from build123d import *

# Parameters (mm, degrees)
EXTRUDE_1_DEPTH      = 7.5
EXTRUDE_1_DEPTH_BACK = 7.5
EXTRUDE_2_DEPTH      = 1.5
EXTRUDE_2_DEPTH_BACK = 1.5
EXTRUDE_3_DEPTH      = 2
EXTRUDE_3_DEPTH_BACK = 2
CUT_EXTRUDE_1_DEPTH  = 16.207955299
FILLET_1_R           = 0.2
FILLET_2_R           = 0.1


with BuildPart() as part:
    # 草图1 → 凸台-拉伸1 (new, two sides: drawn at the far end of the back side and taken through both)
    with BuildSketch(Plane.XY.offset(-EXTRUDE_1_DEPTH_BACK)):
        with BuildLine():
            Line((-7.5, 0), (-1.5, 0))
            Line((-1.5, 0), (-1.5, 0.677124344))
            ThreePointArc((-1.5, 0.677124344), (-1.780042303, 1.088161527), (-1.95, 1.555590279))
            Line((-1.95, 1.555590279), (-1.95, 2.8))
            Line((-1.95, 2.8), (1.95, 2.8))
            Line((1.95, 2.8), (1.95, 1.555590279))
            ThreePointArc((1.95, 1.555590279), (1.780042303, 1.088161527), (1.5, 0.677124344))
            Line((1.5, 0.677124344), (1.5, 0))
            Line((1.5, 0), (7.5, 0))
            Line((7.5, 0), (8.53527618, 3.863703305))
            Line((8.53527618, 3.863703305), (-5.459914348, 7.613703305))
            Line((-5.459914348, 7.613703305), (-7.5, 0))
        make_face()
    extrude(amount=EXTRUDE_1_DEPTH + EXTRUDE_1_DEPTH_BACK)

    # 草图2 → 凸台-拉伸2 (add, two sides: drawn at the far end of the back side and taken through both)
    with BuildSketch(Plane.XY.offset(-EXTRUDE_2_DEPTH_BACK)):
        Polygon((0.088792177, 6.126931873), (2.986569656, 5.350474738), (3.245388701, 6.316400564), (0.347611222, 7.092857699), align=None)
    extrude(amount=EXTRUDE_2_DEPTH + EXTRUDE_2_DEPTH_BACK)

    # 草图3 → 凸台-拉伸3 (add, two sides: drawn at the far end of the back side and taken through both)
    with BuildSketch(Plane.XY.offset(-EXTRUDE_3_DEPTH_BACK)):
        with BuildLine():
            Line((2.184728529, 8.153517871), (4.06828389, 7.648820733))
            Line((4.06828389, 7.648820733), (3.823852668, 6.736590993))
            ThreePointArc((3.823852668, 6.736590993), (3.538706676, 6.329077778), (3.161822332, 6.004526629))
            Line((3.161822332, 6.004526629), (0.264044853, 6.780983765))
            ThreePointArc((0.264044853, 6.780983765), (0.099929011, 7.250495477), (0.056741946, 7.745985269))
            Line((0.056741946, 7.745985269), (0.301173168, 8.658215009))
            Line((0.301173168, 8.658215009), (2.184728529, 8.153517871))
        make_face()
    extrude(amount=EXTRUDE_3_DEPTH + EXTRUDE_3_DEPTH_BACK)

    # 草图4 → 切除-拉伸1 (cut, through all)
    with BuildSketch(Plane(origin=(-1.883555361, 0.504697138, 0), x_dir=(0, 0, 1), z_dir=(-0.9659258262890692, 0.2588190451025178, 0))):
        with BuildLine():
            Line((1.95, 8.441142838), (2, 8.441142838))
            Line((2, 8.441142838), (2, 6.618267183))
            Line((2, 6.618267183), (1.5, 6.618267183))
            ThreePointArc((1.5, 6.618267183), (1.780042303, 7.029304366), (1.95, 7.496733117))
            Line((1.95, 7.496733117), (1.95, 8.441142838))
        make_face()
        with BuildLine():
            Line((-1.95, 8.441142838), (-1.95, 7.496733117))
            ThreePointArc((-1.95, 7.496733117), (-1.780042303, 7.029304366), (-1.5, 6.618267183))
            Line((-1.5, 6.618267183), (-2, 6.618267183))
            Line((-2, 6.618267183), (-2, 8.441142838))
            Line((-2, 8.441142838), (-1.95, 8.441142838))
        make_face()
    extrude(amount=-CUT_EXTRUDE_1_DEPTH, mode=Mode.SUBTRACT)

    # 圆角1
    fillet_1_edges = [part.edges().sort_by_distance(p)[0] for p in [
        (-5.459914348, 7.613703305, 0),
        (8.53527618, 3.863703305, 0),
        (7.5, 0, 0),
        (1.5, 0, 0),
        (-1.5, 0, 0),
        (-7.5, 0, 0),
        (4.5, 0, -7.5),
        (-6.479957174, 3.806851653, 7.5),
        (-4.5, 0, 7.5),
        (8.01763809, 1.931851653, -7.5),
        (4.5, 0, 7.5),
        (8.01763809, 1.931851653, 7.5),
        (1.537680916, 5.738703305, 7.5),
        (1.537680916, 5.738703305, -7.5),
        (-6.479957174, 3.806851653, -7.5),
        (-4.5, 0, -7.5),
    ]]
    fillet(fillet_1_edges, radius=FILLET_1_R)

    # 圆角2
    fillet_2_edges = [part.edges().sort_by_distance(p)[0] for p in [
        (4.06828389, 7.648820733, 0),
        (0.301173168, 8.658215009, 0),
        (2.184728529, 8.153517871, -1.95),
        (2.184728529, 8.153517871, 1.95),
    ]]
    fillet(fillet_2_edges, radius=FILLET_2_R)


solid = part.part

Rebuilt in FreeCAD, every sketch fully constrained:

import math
import FreeCAD as App
import Part
import Sketcher
from FreeCAD import Vector
Q = App.Units.Quantity


def edges_at(feature, points):
    """Names of the edges that pass closest to the given points."""
    edges = feature.Shape.Edges
    near = lambda p: min(range(len(edges)), key=lambda i: edges[i].distToShape(Part.Vertex(*p))[0])
    return sorted({f"Edge{near(p) + 1}" for p in points})


def add_polygon(sketch, points):
    """Adds a closed chain of lines whose ends are joined by coincident constraints."""
    first, n = sketch.GeometryCount, len(points)
    for a, b in zip(points, points[1:] + points[:1]):
        sketch.addGeometry(Part.LineSegment(App.Vector(*a, 0), App.Vector(*b, 0)), False)
    for i in range(n):
        sketch.addConstraint(Sketcher.Constraint("Coincident", first + i, 2, first + (i + 1) % n, 1))

doc = App.newDocument("Part")
params = doc.addObject("Spreadsheet::Sheet", "Params")
for row, (alias, value) in enumerate([
    ("sketch1_radius", "2 mm"),
    ("sketch1_width", "6 mm"),
    ("sketch1_length", "4 mm"),
    ("sketch1_width2", "3.9 mm"),
    ("pad1_length", "7.5 mm"),
    ("pad1_length2", "7.5 mm"),
    ("sketch2_length", "3 mm"),
    ("sketch2_length2", "1 mm"),
    ("pad2_length", "1.5 mm"),
    ("pad2_length2", "1.5 mm"),
    ("sketch3_radius", "2 mm"),
    ("sketch3_length", "3 mm"),
    ("sketch3_length2", "3.9 mm"),
    ("pad3_length", "2 mm"),
    ("pad3_length2", "2 mm"),
    ("sketch4_radius", "2 mm"),
    ("sketch4_width", "0.5 mm"),
    ("sketch4_width2", "0.05 mm"),
    ("fillet_radius", "0.2 mm"),
    ("fillet2_radius", "0.1 mm"),
], start=1):
    params.set(f"A{row}", alias)
    params.set(f"B{row}", "=" + value)
    params.setAlias(f"B{row}", alias)

body = doc.addObject("PartDesign::Body", "Body")

sketch1 = doc.addObject("Sketcher::SketchObject", "Sketch")
body.addObject(sketch1)
sketch1.AttachmentSupport = (doc.XY_Plane, [""])
sketch1.MapMode = "FlatFace"
sketch1.addGeometry([
    Part.LineSegment(Vector(-7.5, 0, 0), Vector(-1.5, 0, 0)),
    Part.LineSegment(Vector(-1.5, 0, 0), Vector(-1.5, 0.677124, 0)),
    Part.ArcOfCircle(Part.Circle(Vector(0, 2, 0), Vector(0, 0, 1), 2), math.radians(-167.161432), math.radians(-138.590378)),
    Part.LineSegment(Vector(-1.95, 1.55559, 0), Vector(-1.95, 2.8, 0)),
    Part.LineSegment(Vector(-1.95, 2.8, 0), Vector(1.95, 2.8, 0)),
    Part.LineSegment(Vector(1.95, 2.8, 0), Vector(1.95, 1.55559, 0)),
    Part.ArcOfCircle(Part.Circle(Vector(0, 2, 0), Vector(0, 0, 1), 2), math.radians(-41.409622), math.radians(-12.838568)),
    Part.LineSegment(Vector(1.5, 0.677124, 0), Vector(1.5, 0, 0)),
    Part.LineSegment(Vector(1.5, 0, 0), Vector(7.5, 0, 0)),
    Part.LineSegment(Vector(7.5, 0, 0), Vector(8.535276, 3.863703, 0)),
    Part.LineSegment(Vector(8.535276, 3.863703, 0), Vector(-5.459914, 7.613703, 0)),
    Part.LineSegment(Vector(-5.459914, 7.613703, 0), Vector(-7.5, 0, 0)),
], False)
sketch1.addConstraint([
    Sketcher.Constraint("Coincident", 0, 2, 1, 1),
    Sketcher.Constraint("Coincident", 1, 2, 2, 2),
    Sketcher.Constraint("Coincident", 2, 1, 3, 1),
    Sketcher.Constraint("Coincident", 3, 2, 4, 1),
    Sketcher.Constraint("Coincident", 4, 2, 5, 1),
    Sketcher.Constraint("Coincident", 5, 2, 6, 2),
    Sketcher.Constraint("Coincident", 6, 1, 7, 1),
    Sketcher.Constraint("Coincident", 7, 2, 8, 1),
    Sketcher.Constraint("Coincident", 8, 2, 9, 1),
    Sketcher.Constraint("Coincident", 9, 2, 10, 1),
    Sketcher.Constraint("Coincident", 10, 2, 11, 1),
    Sketcher.Constraint("Coincident", 11, 2, 0, 1),
    Sketcher.Constraint("Horizontal", 0),
    Sketcher.Constraint("Vertical", 1),
    Sketcher.Constraint("Vertical", 3),
    Sketcher.Constraint("Horizontal", 4),
    Sketcher.Constraint("Vertical", 5),
    Sketcher.Constraint("Vertical", 7),
    Sketcher.Constraint("Horizontal", 8),
    Sketcher.Constraint("Coincident", 6, 3, 2, 3),
    Sketcher.Constraint("Equal", 2, 6),
    Sketcher.Constraint("Symmetric", 0, 2, 7, 2, -1, 1),
    Sketcher.Constraint("Symmetric", 2, 1, 5, 2, -2),
    Sketcher.Constraint("Symmetric", 8, 2, 11, 2, -2),
    Sketcher.Constraint("Perpendicular", 9, 10),
    Sketcher.Constraint("Perpendicular", 10, 11),
    Sketcher.Constraint("Radius", 2, Q("2 mm")),
    Sketcher.Constraint("DistanceX", 0, 1, 0, 2, Q("6 mm")),
    Sketcher.Constraint("Angle", 9, Q("75 deg")),
    Sketcher.Constraint("Distance", 9, Q("4 mm")),
    Sketcher.Constraint("DistanceX", 4, 1, 4, 2, Q("3.9 mm")),
    Sketcher.Constraint("DistanceY", -1, 1, 2, 3, Q("2 mm")),
    Sketcher.Constraint("DistanceX", 1, 2, 6, 1, Q("3 mm")),
    Sketcher.Constraint("DistanceY", -1, 1, 3, 2, Q("2.8 mm")),
])
sketch1.setExpression("Constraints[26]", "Params.sketch1_radius")
sketch1.setExpression("Constraints[27]", "Params.sketch1_width")
sketch1.setExpression("Constraints[29]", "Params.sketch1_length")
sketch1.setExpression("Constraints[30]", "Params.sketch1_width2")
pad1 = doc.addObject("PartDesign::Pad", "Pad")
body.addObject(pad1)
pad1.Profile = sketch1
pad1.Type = "TwoLengths"
pad1.setExpression("Length", "Params.pad1_length")
pad1.setExpression("Length2", "Params.pad1_length2")

sketch2 = doc.addObject("Sketcher::SketchObject", "Sketch001")
body.addObject(sketch2)
sketch2.AttachmentSupport = (doc.XY_Plane, [""])
sketch2.MapMode = "FlatFace"
add_polygon(sketch2, [(0.088792, 6.126932), (2.98657, 5.350475), (3.245389, 6.316401), (0.347611, 7.092858)])
sketch2.addConstraint([
    Sketcher.Constraint("Perpendicular", 0, 1),
    Sketcher.Constraint("Perpendicular", 1, 2),
    Sketcher.Constraint("Perpendicular", 2, 3),
    Sketcher.Constraint("Angle", 0, Q("-15 deg")),
    Sketcher.Constraint("Distance", 0, Q("3 mm")),
    Sketcher.Constraint("Distance", 1, Q("1 mm")),
    Sketcher.Constraint("DistanceY", -1, 1, 1, 2, Q("6.316401 mm")),
    Sketcher.Constraint("DistanceX", -1, 1, 0, 2, Q("2.98657 mm")),
])
sketch2.setExpression("Constraints[8]", "Params.sketch2_length")
sketch2.setExpression("Constraints[9]", "Params.sketch2_length2")
pad2 = doc.addObject("PartDesign::Pad", "Pad001")
body.addObject(pad2)
pad2.Profile = sketch2
pad2.Type = "TwoLengths"
pad2.setExpression("Length", "Params.pad2_length")
pad2.setExpression("Length2", "Params.pad2_length2")

sketch3 = doc.addObject("Sketcher::SketchObject", "Sketch002")
body.addObject(sketch3)
sketch3.AttachmentSupport = (doc.XY_Plane, [""])
sketch3.MapMode = "FlatFace"
sketch3.addGeometry([
    Part.LineSegment(Vector(3.823853, 6.736591, 0), Vector(4.068284, 7.648821, 0)),
    Part.LineSegment(Vector(4.068284, 7.648821, 0), Vector(0.301173, 8.658215, 0)),
    Part.LineSegment(Vector(0.301173, 8.658215, 0), Vector(0.056742, 7.745985, 0)),
    Part.ArcOfCircle(Part.Circle(Vector(2.055319, 7.670555, 0), Vector(0, 0, 1), 2), math.radians(177.838568), math.radians(206.409622)),
    Part.LineSegment(Vector(0.264045, 6.780984, 0), Vector(3.161822, 6.004527, 0)),
    Part.ArcOfCircle(Part.Circle(Vector(2.055319, 7.670555, 0), Vector(0, 0, 1), 2), math.radians(-56.409622), math.radians(-27.838568)),
], False)
sketch3.addConstraint([
    Sketcher.Constraint("Coincident", 0, 2, 1, 1),
    Sketcher.Constraint("Coincident", 1, 2, 2, 1),
    Sketcher.Constraint("Coincident", 2, 2, 3, 1),
    Sketcher.Constraint("Coincident", 3, 2, 4, 1),
    Sketcher.Constraint("Coincident", 4, 2, 5, 1),
    Sketcher.Constraint("Coincident", 5, 2, 0, 1),
    Sketcher.Constraint("Coincident", 5, 3, 3, 3),
    Sketcher.Constraint("Equal", 3, 5),
    Sketcher.Constraint("Perpendicular", 0, 1),
    Sketcher.Constraint("Perpendicular", 1, 2),
    Sketcher.Constraint("Perpendicular", 2, 4),
    Sketcher.Constraint("Equal", 0, 2),
    Sketcher.Constraint("Radius", 3, Q("2 mm")),
    Sketcher.Constraint("Angle", 0, Q("75 deg")),
    Sketcher.Constraint("Distance", 4, Q("3 mm")),
    Sketcher.Constraint("Distance", 1, Q("3.9 mm")),
    Sketcher.Constraint("Distance", 0, Q("0.94441 mm")),
    Sketcher.Constraint("DistanceX", -1, 1, 3, 3, Q("2.055319 mm")),
    Sketcher.Constraint("DistanceY", -1, 1, 0, 2, Q("7.648821 mm")),
])
sketch3.setExpression("Constraints[12]", "Params.sketch3_radius")
sketch3.setExpression("Constraints[14]", "Params.sketch3_length")
sketch3.setExpression("Constraints[15]", "Params.sketch3_length2")
pad3 = doc.addObject("PartDesign::Pad", "Pad002")
body.addObject(pad3)
pad3.Profile = sketch3
pad3.Type = "TwoLengths"
pad3.setExpression("Length", "Params.pad3_length")
pad3.setExpression("Length2", "Params.pad3_length2")

sketch4 = doc.addObject("Sketcher::SketchObject", "Sketch003")
body.addObject(sketch4)
sketch4.Placement = App.Placement(Vector(-1.883555, 0.504697, 0), App.Rotation(Vector(0, 0, 1), Vector(0.258819045, 0.965925826, 0), Vector(-0.965925826, 0.258819045, 0), "ZXY"))
sketch4.addGeometry([
    Part.LineSegment(Vector(2, 8.441143, 0), Vector(1.95, 8.441143, 0)),
    Part.LineSegment(Vector(1.95, 8.441143, 0), Vector(1.95, 7.496733, 0)),
    Part.ArcOfCircle(Part.Circle(Vector(0, 7.941143, 0), Vector(0, 0, 1), 2), math.radians(-41.409622), math.radians(-12.838568)),
    Part.LineSegment(Vector(1.5, 6.618267, 0), Vector(2, 6.618267, 0)),
    Part.LineSegment(Vector(2, 6.618267, 0), Vector(2, 8.441143, 0)),
    Part.LineSegment(Vector(-1.95, 7.496733, 0), Vector(-1.95, 8.441143, 0)),
    Part.LineSegment(Vector(-1.95, 8.441143, 0), Vector(-2, 8.441143, 0)),
    Part.LineSegment(Vector(-2, 8.441143, 0), Vector(-2, 6.618267, 0)),
    Part.LineSegment(Vector(-2, 6.618267, 0), Vector(-1.5, 6.618267, 0)),
    Part.ArcOfCircle(Part.Circle(Vector(0, 7.941143, 0), Vector(0, 0, 1), 2), math.radians(-167.161432), math.radians(-138.590378)),
], False)
sketch4.addConstraint([
    Sketcher.Constraint("Coincident", 0, 2, 1, 1),
    Sketcher.Constraint("Coincident", 1, 2, 2, 2),
    Sketcher.Constraint("Coincident", 2, 1, 3, 1),
    Sketcher.Constraint("Coincident", 3, 2, 4, 1),
    Sketcher.Constraint("Coincident", 4, 2, 0, 1),
    Sketcher.Constraint("Coincident", 5, 2, 6, 1),
    Sketcher.Constraint("Coincident", 6, 2, 7, 1),
    Sketcher.Constraint("Coincident", 7, 2, 8, 1),
    Sketcher.Constraint("Coincident", 8, 2, 9, 2),
    Sketcher.Constraint("Coincident", 9, 1, 5, 1),
    Sketcher.Constraint("Horizontal", 0),
    Sketcher.Constraint("Vertical", 1),
    Sketcher.Constraint("Horizontal", 3),
    Sketcher.Constraint("Vertical", 4),
    Sketcher.Constraint("Vertical", 5),
    Sketcher.Constraint("Horizontal", 6),
    Sketcher.Constraint("Vertical", 7),
    Sketcher.Constraint("Horizontal", 8),
    Sketcher.Constraint("Coincident", 9, 3, 2, 3),
    Sketcher.Constraint("Equal", 2, 9),
    Sketcher.Constraint("Symmetric", 0, 2, 5, 2, -2),
    Sketcher.Constraint("Symmetric", 3, 2, 7, 2, -2),
    Sketcher.Constraint("PointOnObject", 2, 3, -2),
    Sketcher.Constraint("Radius", 2, Q("2 mm")),
    Sketcher.Constraint("DistanceX", 3, 1, 3, 2, Q("0.5 mm")),
    Sketcher.Constraint("DistanceX", -1, 1, 3, 2, Q("2 mm")),
    Sketcher.Constraint("DistanceX", 0, 2, 0, 1, Q("0.05 mm")),
    Sketcher.Constraint("DistanceY", 2, 3, 0, 2, Q("0.5 mm")),
    Sketcher.Constraint("DistanceY", -1, 1, 2, 3, Q("7.941143 mm")),
])
sketch4.setExpression("Constraints[23]", "Params.sketch4_radius")
sketch4.setExpression("Constraints[24]", "Params.sketch4_width")
sketch4.setExpression("Constraints[26]", "Params.sketch4_width2")
pocket1 = doc.addObject("PartDesign::Pocket", "Pocket")
body.addObject(pocket1)
pocket1.Profile = sketch4
pocket1.Type = "ThroughAll"
doc.recompute()

fillet = doc.addObject("PartDesign::Fillet", "Fillet")
body.addObject(fillet)
fillet.Base = (pocket1, edges_at(pocket1, [
    (-5.46, 7.614, 0),
    (8.535, 3.864, 0),
    (7.5, 0, 0),
    (1.5, 0, 0),
    (-1.5, 0, 0),
    (-7.5, 0, 0),
    (4.5, 0, -7.5),
    (-6.48, 3.807, 7.5),
    (-4.5, 0, 7.5),
    (8.018, 1.932, -7.5),
    (4.5, 0, 7.5),
    (8.018, 1.932, 7.5),
    (1.538, 5.739, 7.5),
    (1.538, 5.739, -7.5),
    (-6.48, 3.807, -7.5),
    (-4.5, 0, -7.5),
]))
fillet.setExpression("Radius", "Params.fillet_radius")
doc.recompute()

fillet2 = doc.addObject("PartDesign::Fillet", "Fillet001")
body.addObject(fillet2)
fillet2.Base = (fillet, edges_at(fillet, [
    (4.068, 7.649, 0),
    (0.301, 8.658, 0),
    (2.185, 8.154, -1.95),
    (2.185, 8.154, 1.95),
]))
fillet2.setExpression("Radius", "Params.fillet2_radius")

doc.recompute()
